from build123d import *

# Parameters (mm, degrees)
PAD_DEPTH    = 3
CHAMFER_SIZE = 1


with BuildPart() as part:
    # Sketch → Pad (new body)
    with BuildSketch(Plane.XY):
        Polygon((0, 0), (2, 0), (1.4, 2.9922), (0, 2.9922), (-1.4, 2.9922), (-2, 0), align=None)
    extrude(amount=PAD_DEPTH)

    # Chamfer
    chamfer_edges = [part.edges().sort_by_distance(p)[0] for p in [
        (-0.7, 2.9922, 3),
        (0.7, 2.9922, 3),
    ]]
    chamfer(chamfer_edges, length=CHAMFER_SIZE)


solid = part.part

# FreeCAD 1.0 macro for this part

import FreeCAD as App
import Part
import Sketcher
from FreeCAD import Vector
Q = App.Units.Quantity


def edges_at(feature, points):
    """Names of the edges that pass closest to the given points."""
    edges = feature.Shape.Edges
    near = lambda p: min(range(len(edges)), key=lambda i: edges[i].distToShape(Part.Vertex(*p))[0])
    return sorted({f"Edge{near(p) + 1}" for p in points})

doc = App.newDocument("Part")
body = doc.addObject("PartDesign::Body", "Body")

# Sketch on XY plane
sketch1 = doc.addObject("Sketcher::SketchObject", "Sketch")
body.addObject(sketch1)
sketch1.AttachmentSupport = (doc.XY_Plane, [""])
sketch1.MapMode = "FlatFace"
sketch1.addGeometry([
    Part.LineSegment(Vector(2, 0, 0), Vector(1.4, 2.9922, 0)),
    Part.LineSegment(Vector(1.4, 2.9922, 0), Vector(-1.4, 2.9922, 0)),
    Part.LineSegment(Vector(-1.4, 2.9922, 0), Vector(-2, 0, 0)),
    Part.LineSegment(Vector(-2, 0, 0), Vector(2, 0, 0)),
], False)
sketch1.addConstraint([
    Sketcher.Constraint("Coincident", 0, 2, 1, 1),
    Sketcher.Constraint("Coincident", 1, 2, 2, 1),
    Sketcher.Constraint("Coincident", 2, 2, 3, 1),
    Sketcher.Constraint("Coincident", 3, 2, 0, 1),
    Sketcher.Constraint("Horizontal", 1),
    Sketcher.Constraint("Horizontal", 3),
    Sketcher.Constraint("Symmetric", 2, 2, 3, 2, -1, 1),
    Sketcher.Constraint("Equal", 0, 2),
    Sketcher.Constraint("DistanceX", 3, 1, 3, 2, Q("4 mm")),
    Sketcher.Constraint("DistanceX", 1, 2, 1, 1, Q("2.8 mm")),
    Sketcher.Constraint("DistanceY", -1, 1, 0, 2, Q("2.9922 mm")),
])
pad1 = doc.addObject("PartDesign::Pad", "Pad")
body.addObject(pad1)
pad1.Profile = sketch1
pad1.Length = 3
doc.recompute()

chamfer = doc.addObject("PartDesign::Chamfer", "Chamfer")
body.addObject(chamfer)
chamfer.Base = (pad1, edges_at(pad1, [(0, 2.992, 3), (0, 2.992, 3)]))
chamfer.Size = 1

doc.recompute()
